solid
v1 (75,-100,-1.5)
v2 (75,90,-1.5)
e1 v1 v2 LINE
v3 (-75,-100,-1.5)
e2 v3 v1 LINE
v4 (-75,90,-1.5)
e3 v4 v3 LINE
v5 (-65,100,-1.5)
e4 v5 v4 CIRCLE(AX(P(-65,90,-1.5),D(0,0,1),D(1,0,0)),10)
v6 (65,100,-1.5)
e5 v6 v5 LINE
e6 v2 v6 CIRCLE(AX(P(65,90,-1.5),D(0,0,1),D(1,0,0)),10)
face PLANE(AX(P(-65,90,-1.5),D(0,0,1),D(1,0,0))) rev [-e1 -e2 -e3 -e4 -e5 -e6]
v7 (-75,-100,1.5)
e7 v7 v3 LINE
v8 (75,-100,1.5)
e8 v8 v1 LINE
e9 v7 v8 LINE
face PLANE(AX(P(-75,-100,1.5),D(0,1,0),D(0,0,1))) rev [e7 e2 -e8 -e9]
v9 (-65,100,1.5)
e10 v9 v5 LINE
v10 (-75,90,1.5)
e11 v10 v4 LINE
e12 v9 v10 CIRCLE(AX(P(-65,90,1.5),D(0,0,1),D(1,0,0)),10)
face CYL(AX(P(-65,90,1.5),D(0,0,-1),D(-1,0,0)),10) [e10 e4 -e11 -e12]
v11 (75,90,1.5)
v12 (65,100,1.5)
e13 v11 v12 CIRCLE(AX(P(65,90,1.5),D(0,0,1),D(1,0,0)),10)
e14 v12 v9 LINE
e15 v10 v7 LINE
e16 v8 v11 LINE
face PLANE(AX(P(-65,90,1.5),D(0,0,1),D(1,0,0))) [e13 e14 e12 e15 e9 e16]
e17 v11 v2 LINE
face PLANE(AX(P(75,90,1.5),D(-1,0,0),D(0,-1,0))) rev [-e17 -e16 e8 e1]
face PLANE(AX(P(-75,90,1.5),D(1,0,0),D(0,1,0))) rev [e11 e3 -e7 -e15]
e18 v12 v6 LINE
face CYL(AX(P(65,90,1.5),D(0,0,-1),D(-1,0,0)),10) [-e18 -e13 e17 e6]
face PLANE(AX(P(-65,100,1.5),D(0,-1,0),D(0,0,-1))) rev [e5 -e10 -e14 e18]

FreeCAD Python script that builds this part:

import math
import FreeCAD as App
import Part
import Sketcher

doc = App.newDocument("Part")
body = doc.addObject("PartDesign::Body", "Body")

# Sketch on XY plane
sketch1 = doc.addObject("Sketcher::SketchObject", "Sketch")
body.addObject(sketch1)
sketch1.AttachmentSupport = (doc.XY_Plane, [""])
sketch1.MapMode = "FlatFace"
sketch1.addGeometry(Part.LineSegment(App.Vector(65, 100, 0), App.Vector(-65, 100, 0)), False)
sketch1.addGeometry(Part.ArcOfCircle(Part.Circle(App.Vector(-65, 90, 0), App.Vector(0, 0, 1), 10), math.radians(90), math.radians(180)), False)
sketch1.addGeometry(Part.LineSegment(App.Vector(-75, 90, 0), App.Vector(-75, -100, 0)), False)
sketch1.addGeometry(Part.LineSegment(App.Vector(-75, -100, 0), App.Vector(75, -100, 0)), False)
sketch1.addGeometry(Part.LineSegment(App.Vector(75, -100, 0), App.Vector(75, 90, 0)), False)
sketch1.addGeometry(Part.ArcOfCircle(Part.Circle(App.Vector(65, 90, 0), App.Vector(0, 0, 1), 10), math.radians(0), math.radians(90)), False)
sketch1.addConstraint(Sketcher.Constraint("Tangent", 0, 2, 1, 1))
sketch1.addConstraint(Sketcher.Constraint("Tangent", 1, 2, 2, 1))
sketch1.addConstraint(Sketcher.Constraint("Coincident", 2, 2, 3, 1))
sketch1.addConstraint(Sketcher.Constraint("Coincident", 3, 2, 4, 1))
sketch1.addConstraint(Sketcher.Constraint("Tangent", 4, 2, 5, 1))
sketch1.addConstraint(Sketcher.Constraint("Tangent", 5, 2, 0, 1))
sketch1.addConstraint(Sketcher.Constraint("Horizontal", 0))
sketch1.addConstraint(Sketcher.Constraint("Vertical", 2))
sketch1.addConstraint(Sketcher.Constraint("Horizontal", 3))
sketch1.addConstraint(Sketcher.Constraint("Vertical", 4))
sketch1.addConstraint(Sketcher.Constraint("Equal", 1, 5))
sketch1.addConstraint(Sketcher.Constraint("Radius", 1, 10.0))
sketch1.addConstraint(Sketcher.Constraint("DistanceX", 0, 2, 0, 1, 130.0))
sketch1.addConstraint(Sketcher.Constraint("DistanceY", 2, 2, 2, 1, 190.0))
sketch1.addConstraint(Sketcher.Constraint("DistanceX", 1, 3, -1, 1, 65.0))
sketch1.addConstraint(Sketcher.Constraint("DistanceY", -1, 1, 1, 3, 90.0))
pad1 = doc.addObject("PartDesign::Pad", "Pad")
body.addObject(pad1)
pad1.Profile = sketch1
pad1.Length = 3
pad1.Midplane = True

doc.recompute()
